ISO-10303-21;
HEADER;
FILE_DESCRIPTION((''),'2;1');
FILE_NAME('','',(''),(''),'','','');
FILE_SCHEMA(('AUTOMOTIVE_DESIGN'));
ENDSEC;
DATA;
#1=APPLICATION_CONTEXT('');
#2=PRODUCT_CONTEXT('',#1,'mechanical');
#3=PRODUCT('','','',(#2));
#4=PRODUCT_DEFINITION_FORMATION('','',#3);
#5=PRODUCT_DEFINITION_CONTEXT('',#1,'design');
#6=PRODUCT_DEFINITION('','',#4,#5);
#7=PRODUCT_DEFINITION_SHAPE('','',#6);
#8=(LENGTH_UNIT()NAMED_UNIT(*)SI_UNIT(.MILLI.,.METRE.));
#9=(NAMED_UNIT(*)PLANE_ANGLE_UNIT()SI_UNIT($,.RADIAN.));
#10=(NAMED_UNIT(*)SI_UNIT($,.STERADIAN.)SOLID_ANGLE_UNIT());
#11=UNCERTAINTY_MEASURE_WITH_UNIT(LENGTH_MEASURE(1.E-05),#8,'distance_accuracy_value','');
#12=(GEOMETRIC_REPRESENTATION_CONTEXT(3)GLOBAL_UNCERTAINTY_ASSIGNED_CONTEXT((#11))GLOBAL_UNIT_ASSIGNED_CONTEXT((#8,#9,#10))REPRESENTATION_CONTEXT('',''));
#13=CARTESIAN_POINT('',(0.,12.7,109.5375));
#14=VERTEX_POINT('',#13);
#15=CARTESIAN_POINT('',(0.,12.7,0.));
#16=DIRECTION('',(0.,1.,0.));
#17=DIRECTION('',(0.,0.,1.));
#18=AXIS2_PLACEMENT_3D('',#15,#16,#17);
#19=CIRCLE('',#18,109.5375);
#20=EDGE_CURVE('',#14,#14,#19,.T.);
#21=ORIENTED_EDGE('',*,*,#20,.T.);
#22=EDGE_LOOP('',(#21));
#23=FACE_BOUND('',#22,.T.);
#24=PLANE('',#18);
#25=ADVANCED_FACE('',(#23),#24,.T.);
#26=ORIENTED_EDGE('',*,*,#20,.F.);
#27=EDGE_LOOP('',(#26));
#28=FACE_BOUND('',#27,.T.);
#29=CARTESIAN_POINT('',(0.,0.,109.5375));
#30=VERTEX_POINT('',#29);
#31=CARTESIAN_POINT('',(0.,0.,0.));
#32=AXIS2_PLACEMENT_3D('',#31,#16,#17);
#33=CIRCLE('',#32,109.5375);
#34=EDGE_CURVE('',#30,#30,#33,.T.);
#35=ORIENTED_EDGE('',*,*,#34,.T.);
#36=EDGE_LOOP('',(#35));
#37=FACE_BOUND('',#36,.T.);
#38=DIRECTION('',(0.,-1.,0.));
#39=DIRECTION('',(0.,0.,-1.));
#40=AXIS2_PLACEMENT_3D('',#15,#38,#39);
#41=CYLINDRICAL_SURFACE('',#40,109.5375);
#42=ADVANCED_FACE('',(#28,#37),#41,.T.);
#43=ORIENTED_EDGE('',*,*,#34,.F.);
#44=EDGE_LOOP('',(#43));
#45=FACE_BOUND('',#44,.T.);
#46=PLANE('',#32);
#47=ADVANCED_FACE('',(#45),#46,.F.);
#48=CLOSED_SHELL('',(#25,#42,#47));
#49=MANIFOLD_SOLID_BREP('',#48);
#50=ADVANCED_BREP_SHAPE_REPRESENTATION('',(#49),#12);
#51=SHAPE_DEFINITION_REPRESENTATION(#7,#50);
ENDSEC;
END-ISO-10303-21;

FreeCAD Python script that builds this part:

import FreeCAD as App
import Part
import Sketcher

V = App.Vector
Q = App.Units.Quantity

doc = App.newDocument("Part")
body = doc.addObject("PartDesign::Body", "Body")

sketch1 = body.newObject("Sketcher::SketchObject", "Sketch")
sketch1.AttachmentSupport = (doc.getObject("XZ_Plane"), [""])
sketch1.MapMode = "FlatFace"
sketch1.addGeometry(Part.Circle(V(0, 0, 0), V(0, 0, 1), 110), False)
sketch1.addConstraint(Sketcher.Constraint("Coincident", 0, 3, -1, 1))
sketch1.addConstraint(Sketcher.Constraint("Diameter", 0, Q("8.625 in")))
pad1 = body.newObject("PartDesign::Pad", "Pad")
pad1.Profile = sketch1
pad1.Length = Q("0.5 in")
pad1.Reversed = True

doc.recompute()
